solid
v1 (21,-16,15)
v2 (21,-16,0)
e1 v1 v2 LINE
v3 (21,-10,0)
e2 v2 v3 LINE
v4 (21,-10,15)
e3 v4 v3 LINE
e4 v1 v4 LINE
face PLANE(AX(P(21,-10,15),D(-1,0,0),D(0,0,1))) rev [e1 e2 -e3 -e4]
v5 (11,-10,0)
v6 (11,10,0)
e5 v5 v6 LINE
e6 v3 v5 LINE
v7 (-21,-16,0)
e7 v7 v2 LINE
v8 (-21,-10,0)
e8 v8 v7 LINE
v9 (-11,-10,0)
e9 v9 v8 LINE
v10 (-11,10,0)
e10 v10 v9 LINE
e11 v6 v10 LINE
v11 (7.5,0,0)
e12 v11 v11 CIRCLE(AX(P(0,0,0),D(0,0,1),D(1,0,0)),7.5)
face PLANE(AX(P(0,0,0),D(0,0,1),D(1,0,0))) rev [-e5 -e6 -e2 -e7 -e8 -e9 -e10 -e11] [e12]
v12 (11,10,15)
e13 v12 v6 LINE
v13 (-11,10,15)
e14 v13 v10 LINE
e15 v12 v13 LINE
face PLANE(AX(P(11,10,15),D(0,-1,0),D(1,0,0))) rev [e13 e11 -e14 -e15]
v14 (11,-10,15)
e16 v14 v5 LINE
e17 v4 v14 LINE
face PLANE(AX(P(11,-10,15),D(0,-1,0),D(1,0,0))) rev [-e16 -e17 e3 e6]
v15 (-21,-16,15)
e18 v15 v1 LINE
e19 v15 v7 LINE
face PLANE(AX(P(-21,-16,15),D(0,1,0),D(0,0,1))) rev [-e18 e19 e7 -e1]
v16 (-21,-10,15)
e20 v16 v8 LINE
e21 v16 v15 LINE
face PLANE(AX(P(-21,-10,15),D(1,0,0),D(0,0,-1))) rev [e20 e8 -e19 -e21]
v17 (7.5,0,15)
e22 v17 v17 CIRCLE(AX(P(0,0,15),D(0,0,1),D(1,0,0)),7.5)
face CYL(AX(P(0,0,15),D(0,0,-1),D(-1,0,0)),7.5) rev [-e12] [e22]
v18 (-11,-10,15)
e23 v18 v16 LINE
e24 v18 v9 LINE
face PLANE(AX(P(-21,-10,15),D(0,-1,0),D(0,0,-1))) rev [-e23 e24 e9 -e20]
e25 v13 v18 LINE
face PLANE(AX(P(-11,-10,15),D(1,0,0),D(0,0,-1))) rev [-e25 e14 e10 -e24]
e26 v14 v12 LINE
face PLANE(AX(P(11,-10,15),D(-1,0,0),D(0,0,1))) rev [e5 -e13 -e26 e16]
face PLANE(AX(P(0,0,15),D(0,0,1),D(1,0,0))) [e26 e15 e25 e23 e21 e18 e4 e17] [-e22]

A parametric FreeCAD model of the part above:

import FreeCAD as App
import Part
import Sketcher

V = App.Vector
Q = App.Units.Quantity


def add_polygon(sketch, points):
    """Adds a closed chain of lines whose ends are joined by coincident constraints."""
    first, n = sketch.GeometryCount, len(points)
    for a, b in zip(points, points[1:] + points[:1]):
        sketch.addGeometry(Part.LineSegment(App.Vector(*a, 0), App.Vector(*b, 0)), False)
    for i in range(n):
        sketch.addConstraint(Sketcher.Constraint("Coincident", first + i, 2, first + (i + 1) % n, 1))

doc = App.newDocument("Part")
body = doc.addObject("PartDesign::Body", "Body")

sketch1 = doc.addObject("Sketcher::SketchObject", "Sketch")
body.addObject(sketch1)
sketch1.AttachmentSupport = (doc.XY_Plane, [""])
sketch1.MapMode = "FlatFace"
add_polygon(sketch1, [(21, -10), (11, -10), (11, 10), (-11, 10), (-11, -10), (-21, -10), (-21, -16), (21, -16)])
sketch1.addGeometry(Part.Circle(V(0, 0, 0), V(0, 0, 1), 8), False)
sketch1.addConstraint([
    Sketcher.Constraint("Horizontal", 0),
    Sketcher.Constraint("Vertical", 1),
    Sketcher.Constraint("Horizontal", 2),
    Sketcher.Constraint("Vertical", 3),
    Sketcher.Constraint("Horizontal", 4),
    Sketcher.Constraint("Vertical", 5),
    Sketcher.Constraint("Horizontal", 6),
    Sketcher.Constraint("Vertical", 7),
    Sketcher.Constraint("Coincident", 8, 3, -1, 1),
    Sketcher.Constraint("Symmetric", 0, 2, 2, 2, -1, 1),
    Sketcher.Constraint("Symmetric", 4, 2, 7, 2, -2),
    Sketcher.Constraint("Diameter", 8, Q("15 mm")),
    Sketcher.Constraint("DistanceX", 0, 2, 0, 1, Q("10 mm")),
    Sketcher.Constraint("DistanceX", 2, 2, 2, 1, Q("22 mm")),
    Sketcher.Constraint("DistanceY", 1, 1, 1, 2, Q("20 mm")),
    Sketcher.Constraint("DistanceY", 5, 2, 5, 1, Q("6 mm")),
])
pad1 = doc.addObject("PartDesign::Pad", "Pad")
body.addObject(pad1)
pad1.Profile = sketch1
pad1.Length = 15

doc.recompute()
